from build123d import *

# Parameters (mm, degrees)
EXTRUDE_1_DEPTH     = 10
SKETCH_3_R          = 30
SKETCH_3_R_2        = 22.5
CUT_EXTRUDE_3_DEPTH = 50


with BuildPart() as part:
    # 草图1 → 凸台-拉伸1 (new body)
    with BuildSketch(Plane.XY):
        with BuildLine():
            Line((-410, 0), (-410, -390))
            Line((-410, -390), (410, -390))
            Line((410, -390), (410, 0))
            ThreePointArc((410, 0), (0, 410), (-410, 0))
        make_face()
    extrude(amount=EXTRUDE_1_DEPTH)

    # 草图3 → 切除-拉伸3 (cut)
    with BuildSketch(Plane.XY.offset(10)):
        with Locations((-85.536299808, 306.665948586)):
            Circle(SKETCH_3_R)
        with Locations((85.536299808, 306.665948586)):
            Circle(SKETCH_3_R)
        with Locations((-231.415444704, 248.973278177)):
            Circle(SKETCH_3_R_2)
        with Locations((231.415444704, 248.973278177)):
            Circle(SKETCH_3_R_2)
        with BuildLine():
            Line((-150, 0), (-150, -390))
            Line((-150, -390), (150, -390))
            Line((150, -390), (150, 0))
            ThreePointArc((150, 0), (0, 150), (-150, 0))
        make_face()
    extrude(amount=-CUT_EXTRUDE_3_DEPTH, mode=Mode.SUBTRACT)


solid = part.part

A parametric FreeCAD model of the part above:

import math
import FreeCAD as App
import Part
import Sketcher
from FreeCAD import Vector
Q = App.Units.Quantity

doc = App.newDocument("Part")
params = doc.addObject("Spreadsheet::Sheet", "Params")
for row, (alias, value) in enumerate([
    ("sketch1_radius", "410 mm"),
    ("sketch1_height", "390 mm"),
    ("pad1_length", "10 mm"),
    ("sketch2_diameter", "60 mm"),
    ("sketch2_diameter2", "45 mm"),
    ("sketch2_radius", "150 mm"),
    ("sketch2_height", "390 mm"),
    ("pocket1_length", "50 mm"),
], start=1):
    params.set(f"A{row}", alias)
    params.set(f"B{row}", "=" + value)
    params.setAlias(f"B{row}", alias)

body = doc.addObject("PartDesign::Body", "Body")

# Sketch on XY plane
sketch1 = doc.addObject("Sketcher::SketchObject", "Sketch")
body.addObject(sketch1)
sketch1.AttachmentSupport = (doc.XY_Plane, [""])
sketch1.MapMode = "FlatFace"
sketch1.addGeometry([
    Part.LineSegment(Vector(-410, 0, 0), Vector(-410, -390, 0)),
    Part.LineSegment(Vector(-410, -390, 0), Vector(410, -390, 0)),
    Part.LineSegment(Vector(410, -390, 0), Vector(410, 0, 0)),
    Part.ArcOfCircle(Part.Circle(Vector(0, 0, 0), Vector(0, 0, 1), 410), math.radians(0), math.radians(180)),
], False)
sketch1.addConstraint([
    Sketcher.Constraint("Coincident", 0, 2, 1, 1),
    Sketcher.Constraint("Coincident", 1, 2, 2, 1),
    Sketcher.Constraint("Tangent", 2, 2, 3, 1),
    Sketcher.Constraint("Tangent", 3, 2, 0, 1),
    Sketcher.Constraint("Vertical", 0),
    Sketcher.Constraint("Horizontal", 1),
    Sketcher.Constraint("Vertical", 2),
    Sketcher.Constraint("Coincident", 3, 3, -1, 1),
    Sketcher.Constraint("Radius", 3, Q("410 mm")),
    Sketcher.Constraint("DistanceY", 0, 2, 0, 1, Q("390 mm")),
])
sketch1.setExpression("Constraints[8]", "Params.sketch1_radius")
sketch1.setExpression("Constraints[9]", "Params.sketch1_height")
pad1 = doc.addObject("PartDesign::Pad", "Pad")
body.addObject(pad1)
pad1.Profile = sketch1
pad1.setExpression("Length", "Params.pad1_length")

# Sketch on XY plane
sketch2 = doc.addObject("Sketcher::SketchObject", "Sketch001")
body.addObject(sketch2)
sketch2.AttachmentSupport = (doc.XY_Plane, [""])
sketch2.MapMode = "FlatFace"
sketch2.AttachmentOffset = App.Placement(Vector(0, 0, 10), App.Rotation())
sketch2.addGeometry([
    Part.Circle(Vector(-86, 307, 0), Vector(0, 0, 1), 30),  # 0
    Part.Circle(Vector(86, 307, 0), Vector(0, 0, 1), 30),  # 1
    Part.Circle(Vector(-231, 249, 0), Vector(0, 0, 1), 22),  # 2
    Part.Circle(Vector(231, 249, 0), Vector(0, 0, 1), 22),  # 3
    Part.LineSegment(Vector(-150, 0, 0), Vector(-150, -390, 0)),  # 4
    Part.LineSegment(Vector(-150, -390, 0), Vector(150, -390, 0)),  # 5
    Part.LineSegment(Vector(150, -390, 0), Vector(150, 0, 0)),  # 6
    Part.ArcOfCircle(Part.Circle(Vector(0, 0, 0), Vector(0, 0, 1), 150), math.radians(0), math.radians(180)),  # 7
], False)
sketch2.addConstraint([
    Sketcher.Constraint("Coincident", 4, 2, 5, 1),
    Sketcher.Constraint("Coincident", 5, 2, 6, 1),
    Sketcher.Constraint("Tangent", 6, 2, 7, 1),
    Sketcher.Constraint("Tangent", 7, 2, 4, 1),
    Sketcher.Constraint("Vertical", 4),
    Sketcher.Constraint("Horizontal", 5),
    Sketcher.Constraint("Vertical", 6),
    Sketcher.Constraint("Coincident", 7, 3, -1, 1),
    Sketcher.Constraint("Equal", 0, 1),
    Sketcher.Constraint("Equal", 2, 3),
    Sketcher.Constraint("Symmetric", 0, 3, 1, 3, -2),
    Sketcher.Constraint("Symmetric", 2, 3, 3, 3, -2),
    Sketcher.Constraint("Diameter", 0, Q("60 mm")),
    Sketcher.Constraint("Diameter", 2, Q("45 mm")),
    Sketcher.Constraint("Radius", 7, Q("150 mm")),
    Sketcher.Constraint("DistanceY", 4, 2, 4, 1, Q("390 mm")),
    Sketcher.Constraint("DistanceX", 0, 3, -1, 1, Q("85.5363 mm")),
    Sketcher.Constraint("DistanceY", -1, 1, 0, 3, Q("306.665949 mm")),
    Sketcher.Constraint("DistanceY", -1, 1, 2, 3, Q("248.973278 mm")),
    Sketcher.Constraint("DistanceX", 2, 3, 3, 3, Q("462.830889 mm")),
])
sketch2.setExpression("Constraints[12]", "Params.sketch2_diameter")
sketch2.setExpression("Constraints[13]", "Params.sketch2_diameter2")
sketch2.setExpression("Constraints[14]", "Params.sketch2_radius")
sketch2.setExpression("Constraints[15]", "Params.sketch2_height")
pocket1 = doc.addObject("PartDesign::Pocket", "Pocket")
body.addObject(pocket1)
pocket1.Profile = sketch2
pocket1.setExpression("Length", "Params.pocket1_length")

doc.recompute()
